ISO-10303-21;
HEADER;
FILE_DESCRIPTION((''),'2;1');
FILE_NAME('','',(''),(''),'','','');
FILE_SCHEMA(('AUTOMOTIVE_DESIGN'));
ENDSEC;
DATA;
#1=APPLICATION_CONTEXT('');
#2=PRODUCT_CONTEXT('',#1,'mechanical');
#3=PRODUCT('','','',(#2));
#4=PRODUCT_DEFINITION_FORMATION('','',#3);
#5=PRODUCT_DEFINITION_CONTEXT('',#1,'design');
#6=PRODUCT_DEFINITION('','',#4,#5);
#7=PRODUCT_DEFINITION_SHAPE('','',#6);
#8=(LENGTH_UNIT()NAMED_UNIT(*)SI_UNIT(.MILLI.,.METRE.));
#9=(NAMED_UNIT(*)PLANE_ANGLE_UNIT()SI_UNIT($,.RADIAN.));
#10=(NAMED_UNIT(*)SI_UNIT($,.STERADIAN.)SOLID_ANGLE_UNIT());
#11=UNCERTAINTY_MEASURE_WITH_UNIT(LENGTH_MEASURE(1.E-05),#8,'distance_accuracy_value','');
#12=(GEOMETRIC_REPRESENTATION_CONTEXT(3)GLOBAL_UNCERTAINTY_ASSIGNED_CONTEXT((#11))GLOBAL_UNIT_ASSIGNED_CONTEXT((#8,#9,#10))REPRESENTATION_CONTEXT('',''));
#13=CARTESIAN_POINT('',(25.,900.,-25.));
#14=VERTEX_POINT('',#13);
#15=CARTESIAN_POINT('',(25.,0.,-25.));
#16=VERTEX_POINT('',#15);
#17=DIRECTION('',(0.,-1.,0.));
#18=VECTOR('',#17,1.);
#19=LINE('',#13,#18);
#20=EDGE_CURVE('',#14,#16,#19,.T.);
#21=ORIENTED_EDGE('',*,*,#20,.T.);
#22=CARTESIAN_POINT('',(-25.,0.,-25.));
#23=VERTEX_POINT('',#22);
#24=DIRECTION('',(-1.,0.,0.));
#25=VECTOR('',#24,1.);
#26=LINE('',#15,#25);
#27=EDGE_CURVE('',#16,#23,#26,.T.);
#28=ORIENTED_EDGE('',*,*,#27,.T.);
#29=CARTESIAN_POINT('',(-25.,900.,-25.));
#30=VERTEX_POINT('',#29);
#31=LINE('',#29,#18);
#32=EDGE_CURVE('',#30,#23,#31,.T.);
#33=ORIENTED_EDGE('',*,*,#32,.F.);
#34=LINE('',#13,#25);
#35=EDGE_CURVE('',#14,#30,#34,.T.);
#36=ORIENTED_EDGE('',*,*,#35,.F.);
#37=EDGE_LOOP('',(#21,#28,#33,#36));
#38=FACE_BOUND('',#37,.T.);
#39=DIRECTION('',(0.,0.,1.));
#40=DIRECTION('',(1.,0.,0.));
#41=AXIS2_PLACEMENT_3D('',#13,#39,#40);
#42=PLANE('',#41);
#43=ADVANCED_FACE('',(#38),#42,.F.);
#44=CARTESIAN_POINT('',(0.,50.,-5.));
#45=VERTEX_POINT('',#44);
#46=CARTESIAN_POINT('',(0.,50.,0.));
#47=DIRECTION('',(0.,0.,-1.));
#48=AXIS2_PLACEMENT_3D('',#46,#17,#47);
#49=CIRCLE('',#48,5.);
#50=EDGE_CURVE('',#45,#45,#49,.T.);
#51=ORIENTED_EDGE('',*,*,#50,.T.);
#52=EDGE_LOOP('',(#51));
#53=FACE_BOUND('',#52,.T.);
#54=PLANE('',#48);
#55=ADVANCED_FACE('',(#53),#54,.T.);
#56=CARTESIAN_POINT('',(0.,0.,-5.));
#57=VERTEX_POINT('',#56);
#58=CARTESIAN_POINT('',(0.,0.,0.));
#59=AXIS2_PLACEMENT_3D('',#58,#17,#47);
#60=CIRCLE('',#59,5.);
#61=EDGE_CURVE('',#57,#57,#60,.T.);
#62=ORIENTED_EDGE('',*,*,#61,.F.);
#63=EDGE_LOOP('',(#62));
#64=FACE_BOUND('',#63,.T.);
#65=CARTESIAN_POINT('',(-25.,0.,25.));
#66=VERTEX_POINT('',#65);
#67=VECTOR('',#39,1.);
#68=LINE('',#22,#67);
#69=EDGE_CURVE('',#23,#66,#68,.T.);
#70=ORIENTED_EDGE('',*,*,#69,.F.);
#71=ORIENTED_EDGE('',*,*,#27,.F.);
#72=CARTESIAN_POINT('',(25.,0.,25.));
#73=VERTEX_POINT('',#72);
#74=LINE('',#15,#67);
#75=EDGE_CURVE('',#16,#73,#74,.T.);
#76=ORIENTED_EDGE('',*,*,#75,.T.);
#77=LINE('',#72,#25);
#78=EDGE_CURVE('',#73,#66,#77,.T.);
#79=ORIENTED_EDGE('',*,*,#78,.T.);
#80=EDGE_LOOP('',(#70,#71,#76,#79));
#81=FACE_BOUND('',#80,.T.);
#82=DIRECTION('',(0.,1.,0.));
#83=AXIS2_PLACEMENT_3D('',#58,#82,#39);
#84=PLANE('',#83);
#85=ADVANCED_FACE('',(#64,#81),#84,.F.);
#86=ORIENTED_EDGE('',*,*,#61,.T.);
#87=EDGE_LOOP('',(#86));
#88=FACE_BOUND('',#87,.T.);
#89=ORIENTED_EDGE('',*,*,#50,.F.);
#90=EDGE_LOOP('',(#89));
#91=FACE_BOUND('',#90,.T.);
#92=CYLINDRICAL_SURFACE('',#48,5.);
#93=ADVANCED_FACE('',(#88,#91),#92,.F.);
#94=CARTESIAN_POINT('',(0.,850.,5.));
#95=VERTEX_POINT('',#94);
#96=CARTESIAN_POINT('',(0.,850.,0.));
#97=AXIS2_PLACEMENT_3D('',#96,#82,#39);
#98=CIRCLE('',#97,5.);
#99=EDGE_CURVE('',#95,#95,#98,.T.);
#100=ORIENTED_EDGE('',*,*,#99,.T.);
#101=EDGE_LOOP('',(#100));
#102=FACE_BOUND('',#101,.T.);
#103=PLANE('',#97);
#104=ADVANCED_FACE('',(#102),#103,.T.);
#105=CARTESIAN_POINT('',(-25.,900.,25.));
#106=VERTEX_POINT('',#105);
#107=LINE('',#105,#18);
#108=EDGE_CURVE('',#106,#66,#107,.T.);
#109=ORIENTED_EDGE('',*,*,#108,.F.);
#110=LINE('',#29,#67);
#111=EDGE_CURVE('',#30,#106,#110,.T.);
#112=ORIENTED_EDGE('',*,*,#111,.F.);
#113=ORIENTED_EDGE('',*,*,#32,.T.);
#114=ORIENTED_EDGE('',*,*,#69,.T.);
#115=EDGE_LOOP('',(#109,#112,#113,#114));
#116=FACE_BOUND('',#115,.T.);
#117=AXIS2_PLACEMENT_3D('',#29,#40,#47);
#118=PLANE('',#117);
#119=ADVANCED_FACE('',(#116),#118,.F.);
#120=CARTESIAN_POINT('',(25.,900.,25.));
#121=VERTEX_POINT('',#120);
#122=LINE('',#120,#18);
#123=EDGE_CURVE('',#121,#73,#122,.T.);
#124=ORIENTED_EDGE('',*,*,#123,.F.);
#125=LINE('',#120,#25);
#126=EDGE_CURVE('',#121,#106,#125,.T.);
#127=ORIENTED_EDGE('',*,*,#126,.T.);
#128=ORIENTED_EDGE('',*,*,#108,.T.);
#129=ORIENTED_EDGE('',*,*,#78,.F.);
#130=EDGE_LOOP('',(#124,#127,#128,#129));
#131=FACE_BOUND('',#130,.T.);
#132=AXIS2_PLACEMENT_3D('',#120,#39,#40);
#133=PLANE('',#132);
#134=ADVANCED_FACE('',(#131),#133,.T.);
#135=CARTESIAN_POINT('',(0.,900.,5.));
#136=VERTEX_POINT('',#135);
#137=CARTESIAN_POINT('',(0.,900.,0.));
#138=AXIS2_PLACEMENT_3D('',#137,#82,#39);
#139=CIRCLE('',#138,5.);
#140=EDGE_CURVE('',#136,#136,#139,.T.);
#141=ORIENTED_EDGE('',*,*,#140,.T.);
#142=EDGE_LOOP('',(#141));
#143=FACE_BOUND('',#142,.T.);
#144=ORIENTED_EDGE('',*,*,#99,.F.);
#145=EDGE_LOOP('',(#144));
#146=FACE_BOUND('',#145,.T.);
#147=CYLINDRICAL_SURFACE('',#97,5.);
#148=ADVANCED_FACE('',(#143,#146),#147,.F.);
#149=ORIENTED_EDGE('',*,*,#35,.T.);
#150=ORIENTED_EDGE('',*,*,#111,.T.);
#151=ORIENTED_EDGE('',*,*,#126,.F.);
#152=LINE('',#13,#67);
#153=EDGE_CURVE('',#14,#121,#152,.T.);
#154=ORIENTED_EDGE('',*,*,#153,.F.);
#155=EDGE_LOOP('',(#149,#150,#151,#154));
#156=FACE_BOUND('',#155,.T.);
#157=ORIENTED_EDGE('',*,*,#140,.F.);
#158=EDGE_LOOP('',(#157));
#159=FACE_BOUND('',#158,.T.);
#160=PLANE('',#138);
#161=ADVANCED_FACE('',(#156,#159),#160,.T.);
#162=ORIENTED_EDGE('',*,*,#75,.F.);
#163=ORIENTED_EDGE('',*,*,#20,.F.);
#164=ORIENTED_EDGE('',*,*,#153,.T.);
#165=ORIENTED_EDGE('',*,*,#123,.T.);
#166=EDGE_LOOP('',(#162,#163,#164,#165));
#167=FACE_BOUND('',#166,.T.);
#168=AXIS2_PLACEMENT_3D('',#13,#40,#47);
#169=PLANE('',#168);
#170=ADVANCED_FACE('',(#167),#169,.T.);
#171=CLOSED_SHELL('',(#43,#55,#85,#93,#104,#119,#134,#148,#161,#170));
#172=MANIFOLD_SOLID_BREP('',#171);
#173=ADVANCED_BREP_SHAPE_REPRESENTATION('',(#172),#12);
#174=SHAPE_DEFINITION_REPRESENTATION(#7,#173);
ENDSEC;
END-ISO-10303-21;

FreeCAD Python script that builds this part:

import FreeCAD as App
import Part
import Sketcher

doc = App.newDocument("Part")
params = doc.addObject("Spreadsheet::Sheet", "Params")
for row, (alias, value) in enumerate([
    ("sketch1_width", "50 mm"),
    ("pad1_length", "900 mm"),
    ("sketch2_diameter", "10 mm"),
    ("pocket1_length", "50 mm"),
    ("sketch3_diameter", "10 mm"),
    ("pocket2_length", "50 mm"),
], start=1):
    params.set(f"A{row}", alias)
    params.set(f"B{row}", "=" + value)
    params.setAlias(f"B{row}", alias)

body = doc.addObject("PartDesign::Body", "Body")

sketch1 = body.newObject("Sketcher::SketchObject", "Sketch")
sketch1.AttachmentSupport = (doc.getObject("XZ_Plane"), [""])
sketch1.MapMode = "FlatFace"
sketch1.addGeometry([
    Part.LineSegment(App.Vector(-25, -25, 0), App.Vector(-25, 25, 0)),
    Part.LineSegment(App.Vector(-25, 25, 0), App.Vector(25, 25, 0)),
    Part.LineSegment(App.Vector(25, 25, 0), App.Vector(25, -25, 0)),
    Part.LineSegment(App.Vector(25, -25, 0), App.Vector(-25, -25, 0)),
], False)
sketch1.addConstraint([
    Sketcher.Constraint("Coincident", 0, 2, 1, 1),
    Sketcher.Constraint("Coincident", 1, 2, 2, 1),
    Sketcher.Constraint("Coincident", 2, 2, 3, 1),
    Sketcher.Constraint("Coincident", 3, 2, 0, 1),
    Sketcher.Constraint("Vertical", 0),
    Sketcher.Constraint("Horizontal", 1),
    Sketcher.Constraint("Vertical", 2),
    Sketcher.Constraint("Horizontal", 3),
    Sketcher.Constraint("Symmetric", 0, 2, 2, 2, -1, 1),
    Sketcher.Constraint("Equal", 3, 0),
    Sketcher.Constraint("DistanceX", 1, 1, 1, 2, 50.0),
])
sketch1.setExpression("Constraints[10]", "Params.sketch1_width")
pad1 = body.newObject("PartDesign::Pad", "Pad")
pad1.Profile = sketch1
pad1.setExpression("Length", "Params.pad1_length")
pad1.Reversed = True

sketch2 = body.newObject("Sketcher::SketchObject", "Sketch001")
sketch2.AttachmentSupport = (doc.getObject("XZ_Plane"), [""])
sketch2.MapMode = "FlatFace"
sketch2.AttachmentOffset = App.Placement(App.Vector(0, 0, -900), App.Rotation())
sketch2.addGeometry(Part.Circle(App.Vector(0, 0, 0), App.Vector(0, 0, 1), 5), False)
sketch2.addConstraint([
    Sketcher.Constraint("Coincident", 0, 3, -1, 1),
    Sketcher.Constraint("Diameter", 0, 10.0),
])
sketch2.setExpression("Constraints[1]", "Params.sketch2_diameter")
pocket1 = body.newObject("PartDesign::Pocket", "Pocket")
pocket1.Profile = sketch2
pocket1.setExpression("Length", "Params.pocket1_length")
pocket1.Reversed = True

sketch3 = body.newObject("Sketcher::SketchObject", "Sketch002")
sketch3.AttachmentSupport = (doc.getObject("XZ_Plane"), [""])
sketch3.MapMode = "FlatFace"
sketch3.AttachmentOffset = App.Placement(App.Vector(0, 0, -50), App.Rotation())
sketch3.addGeometry(Part.Circle(App.Vector(0, 0, 0), App.Vector(0, 0, 1), 5), False)
sketch3.addConstraint([
    Sketcher.Constraint("Coincident", 0, 3, -1, 1),
    Sketcher.Constraint("Diameter", 0, 10.0),
])
sketch3.setExpression("Constraints[1]", "Params.sketch3_diameter")
pocket2 = body.newObject("PartDesign::Pocket", "Pocket001")
pocket2.Profile = sketch3
pocket2.setExpression("Length", "Params.pocket2_length")
pocket2.Reversed = True

doc.recompute()
